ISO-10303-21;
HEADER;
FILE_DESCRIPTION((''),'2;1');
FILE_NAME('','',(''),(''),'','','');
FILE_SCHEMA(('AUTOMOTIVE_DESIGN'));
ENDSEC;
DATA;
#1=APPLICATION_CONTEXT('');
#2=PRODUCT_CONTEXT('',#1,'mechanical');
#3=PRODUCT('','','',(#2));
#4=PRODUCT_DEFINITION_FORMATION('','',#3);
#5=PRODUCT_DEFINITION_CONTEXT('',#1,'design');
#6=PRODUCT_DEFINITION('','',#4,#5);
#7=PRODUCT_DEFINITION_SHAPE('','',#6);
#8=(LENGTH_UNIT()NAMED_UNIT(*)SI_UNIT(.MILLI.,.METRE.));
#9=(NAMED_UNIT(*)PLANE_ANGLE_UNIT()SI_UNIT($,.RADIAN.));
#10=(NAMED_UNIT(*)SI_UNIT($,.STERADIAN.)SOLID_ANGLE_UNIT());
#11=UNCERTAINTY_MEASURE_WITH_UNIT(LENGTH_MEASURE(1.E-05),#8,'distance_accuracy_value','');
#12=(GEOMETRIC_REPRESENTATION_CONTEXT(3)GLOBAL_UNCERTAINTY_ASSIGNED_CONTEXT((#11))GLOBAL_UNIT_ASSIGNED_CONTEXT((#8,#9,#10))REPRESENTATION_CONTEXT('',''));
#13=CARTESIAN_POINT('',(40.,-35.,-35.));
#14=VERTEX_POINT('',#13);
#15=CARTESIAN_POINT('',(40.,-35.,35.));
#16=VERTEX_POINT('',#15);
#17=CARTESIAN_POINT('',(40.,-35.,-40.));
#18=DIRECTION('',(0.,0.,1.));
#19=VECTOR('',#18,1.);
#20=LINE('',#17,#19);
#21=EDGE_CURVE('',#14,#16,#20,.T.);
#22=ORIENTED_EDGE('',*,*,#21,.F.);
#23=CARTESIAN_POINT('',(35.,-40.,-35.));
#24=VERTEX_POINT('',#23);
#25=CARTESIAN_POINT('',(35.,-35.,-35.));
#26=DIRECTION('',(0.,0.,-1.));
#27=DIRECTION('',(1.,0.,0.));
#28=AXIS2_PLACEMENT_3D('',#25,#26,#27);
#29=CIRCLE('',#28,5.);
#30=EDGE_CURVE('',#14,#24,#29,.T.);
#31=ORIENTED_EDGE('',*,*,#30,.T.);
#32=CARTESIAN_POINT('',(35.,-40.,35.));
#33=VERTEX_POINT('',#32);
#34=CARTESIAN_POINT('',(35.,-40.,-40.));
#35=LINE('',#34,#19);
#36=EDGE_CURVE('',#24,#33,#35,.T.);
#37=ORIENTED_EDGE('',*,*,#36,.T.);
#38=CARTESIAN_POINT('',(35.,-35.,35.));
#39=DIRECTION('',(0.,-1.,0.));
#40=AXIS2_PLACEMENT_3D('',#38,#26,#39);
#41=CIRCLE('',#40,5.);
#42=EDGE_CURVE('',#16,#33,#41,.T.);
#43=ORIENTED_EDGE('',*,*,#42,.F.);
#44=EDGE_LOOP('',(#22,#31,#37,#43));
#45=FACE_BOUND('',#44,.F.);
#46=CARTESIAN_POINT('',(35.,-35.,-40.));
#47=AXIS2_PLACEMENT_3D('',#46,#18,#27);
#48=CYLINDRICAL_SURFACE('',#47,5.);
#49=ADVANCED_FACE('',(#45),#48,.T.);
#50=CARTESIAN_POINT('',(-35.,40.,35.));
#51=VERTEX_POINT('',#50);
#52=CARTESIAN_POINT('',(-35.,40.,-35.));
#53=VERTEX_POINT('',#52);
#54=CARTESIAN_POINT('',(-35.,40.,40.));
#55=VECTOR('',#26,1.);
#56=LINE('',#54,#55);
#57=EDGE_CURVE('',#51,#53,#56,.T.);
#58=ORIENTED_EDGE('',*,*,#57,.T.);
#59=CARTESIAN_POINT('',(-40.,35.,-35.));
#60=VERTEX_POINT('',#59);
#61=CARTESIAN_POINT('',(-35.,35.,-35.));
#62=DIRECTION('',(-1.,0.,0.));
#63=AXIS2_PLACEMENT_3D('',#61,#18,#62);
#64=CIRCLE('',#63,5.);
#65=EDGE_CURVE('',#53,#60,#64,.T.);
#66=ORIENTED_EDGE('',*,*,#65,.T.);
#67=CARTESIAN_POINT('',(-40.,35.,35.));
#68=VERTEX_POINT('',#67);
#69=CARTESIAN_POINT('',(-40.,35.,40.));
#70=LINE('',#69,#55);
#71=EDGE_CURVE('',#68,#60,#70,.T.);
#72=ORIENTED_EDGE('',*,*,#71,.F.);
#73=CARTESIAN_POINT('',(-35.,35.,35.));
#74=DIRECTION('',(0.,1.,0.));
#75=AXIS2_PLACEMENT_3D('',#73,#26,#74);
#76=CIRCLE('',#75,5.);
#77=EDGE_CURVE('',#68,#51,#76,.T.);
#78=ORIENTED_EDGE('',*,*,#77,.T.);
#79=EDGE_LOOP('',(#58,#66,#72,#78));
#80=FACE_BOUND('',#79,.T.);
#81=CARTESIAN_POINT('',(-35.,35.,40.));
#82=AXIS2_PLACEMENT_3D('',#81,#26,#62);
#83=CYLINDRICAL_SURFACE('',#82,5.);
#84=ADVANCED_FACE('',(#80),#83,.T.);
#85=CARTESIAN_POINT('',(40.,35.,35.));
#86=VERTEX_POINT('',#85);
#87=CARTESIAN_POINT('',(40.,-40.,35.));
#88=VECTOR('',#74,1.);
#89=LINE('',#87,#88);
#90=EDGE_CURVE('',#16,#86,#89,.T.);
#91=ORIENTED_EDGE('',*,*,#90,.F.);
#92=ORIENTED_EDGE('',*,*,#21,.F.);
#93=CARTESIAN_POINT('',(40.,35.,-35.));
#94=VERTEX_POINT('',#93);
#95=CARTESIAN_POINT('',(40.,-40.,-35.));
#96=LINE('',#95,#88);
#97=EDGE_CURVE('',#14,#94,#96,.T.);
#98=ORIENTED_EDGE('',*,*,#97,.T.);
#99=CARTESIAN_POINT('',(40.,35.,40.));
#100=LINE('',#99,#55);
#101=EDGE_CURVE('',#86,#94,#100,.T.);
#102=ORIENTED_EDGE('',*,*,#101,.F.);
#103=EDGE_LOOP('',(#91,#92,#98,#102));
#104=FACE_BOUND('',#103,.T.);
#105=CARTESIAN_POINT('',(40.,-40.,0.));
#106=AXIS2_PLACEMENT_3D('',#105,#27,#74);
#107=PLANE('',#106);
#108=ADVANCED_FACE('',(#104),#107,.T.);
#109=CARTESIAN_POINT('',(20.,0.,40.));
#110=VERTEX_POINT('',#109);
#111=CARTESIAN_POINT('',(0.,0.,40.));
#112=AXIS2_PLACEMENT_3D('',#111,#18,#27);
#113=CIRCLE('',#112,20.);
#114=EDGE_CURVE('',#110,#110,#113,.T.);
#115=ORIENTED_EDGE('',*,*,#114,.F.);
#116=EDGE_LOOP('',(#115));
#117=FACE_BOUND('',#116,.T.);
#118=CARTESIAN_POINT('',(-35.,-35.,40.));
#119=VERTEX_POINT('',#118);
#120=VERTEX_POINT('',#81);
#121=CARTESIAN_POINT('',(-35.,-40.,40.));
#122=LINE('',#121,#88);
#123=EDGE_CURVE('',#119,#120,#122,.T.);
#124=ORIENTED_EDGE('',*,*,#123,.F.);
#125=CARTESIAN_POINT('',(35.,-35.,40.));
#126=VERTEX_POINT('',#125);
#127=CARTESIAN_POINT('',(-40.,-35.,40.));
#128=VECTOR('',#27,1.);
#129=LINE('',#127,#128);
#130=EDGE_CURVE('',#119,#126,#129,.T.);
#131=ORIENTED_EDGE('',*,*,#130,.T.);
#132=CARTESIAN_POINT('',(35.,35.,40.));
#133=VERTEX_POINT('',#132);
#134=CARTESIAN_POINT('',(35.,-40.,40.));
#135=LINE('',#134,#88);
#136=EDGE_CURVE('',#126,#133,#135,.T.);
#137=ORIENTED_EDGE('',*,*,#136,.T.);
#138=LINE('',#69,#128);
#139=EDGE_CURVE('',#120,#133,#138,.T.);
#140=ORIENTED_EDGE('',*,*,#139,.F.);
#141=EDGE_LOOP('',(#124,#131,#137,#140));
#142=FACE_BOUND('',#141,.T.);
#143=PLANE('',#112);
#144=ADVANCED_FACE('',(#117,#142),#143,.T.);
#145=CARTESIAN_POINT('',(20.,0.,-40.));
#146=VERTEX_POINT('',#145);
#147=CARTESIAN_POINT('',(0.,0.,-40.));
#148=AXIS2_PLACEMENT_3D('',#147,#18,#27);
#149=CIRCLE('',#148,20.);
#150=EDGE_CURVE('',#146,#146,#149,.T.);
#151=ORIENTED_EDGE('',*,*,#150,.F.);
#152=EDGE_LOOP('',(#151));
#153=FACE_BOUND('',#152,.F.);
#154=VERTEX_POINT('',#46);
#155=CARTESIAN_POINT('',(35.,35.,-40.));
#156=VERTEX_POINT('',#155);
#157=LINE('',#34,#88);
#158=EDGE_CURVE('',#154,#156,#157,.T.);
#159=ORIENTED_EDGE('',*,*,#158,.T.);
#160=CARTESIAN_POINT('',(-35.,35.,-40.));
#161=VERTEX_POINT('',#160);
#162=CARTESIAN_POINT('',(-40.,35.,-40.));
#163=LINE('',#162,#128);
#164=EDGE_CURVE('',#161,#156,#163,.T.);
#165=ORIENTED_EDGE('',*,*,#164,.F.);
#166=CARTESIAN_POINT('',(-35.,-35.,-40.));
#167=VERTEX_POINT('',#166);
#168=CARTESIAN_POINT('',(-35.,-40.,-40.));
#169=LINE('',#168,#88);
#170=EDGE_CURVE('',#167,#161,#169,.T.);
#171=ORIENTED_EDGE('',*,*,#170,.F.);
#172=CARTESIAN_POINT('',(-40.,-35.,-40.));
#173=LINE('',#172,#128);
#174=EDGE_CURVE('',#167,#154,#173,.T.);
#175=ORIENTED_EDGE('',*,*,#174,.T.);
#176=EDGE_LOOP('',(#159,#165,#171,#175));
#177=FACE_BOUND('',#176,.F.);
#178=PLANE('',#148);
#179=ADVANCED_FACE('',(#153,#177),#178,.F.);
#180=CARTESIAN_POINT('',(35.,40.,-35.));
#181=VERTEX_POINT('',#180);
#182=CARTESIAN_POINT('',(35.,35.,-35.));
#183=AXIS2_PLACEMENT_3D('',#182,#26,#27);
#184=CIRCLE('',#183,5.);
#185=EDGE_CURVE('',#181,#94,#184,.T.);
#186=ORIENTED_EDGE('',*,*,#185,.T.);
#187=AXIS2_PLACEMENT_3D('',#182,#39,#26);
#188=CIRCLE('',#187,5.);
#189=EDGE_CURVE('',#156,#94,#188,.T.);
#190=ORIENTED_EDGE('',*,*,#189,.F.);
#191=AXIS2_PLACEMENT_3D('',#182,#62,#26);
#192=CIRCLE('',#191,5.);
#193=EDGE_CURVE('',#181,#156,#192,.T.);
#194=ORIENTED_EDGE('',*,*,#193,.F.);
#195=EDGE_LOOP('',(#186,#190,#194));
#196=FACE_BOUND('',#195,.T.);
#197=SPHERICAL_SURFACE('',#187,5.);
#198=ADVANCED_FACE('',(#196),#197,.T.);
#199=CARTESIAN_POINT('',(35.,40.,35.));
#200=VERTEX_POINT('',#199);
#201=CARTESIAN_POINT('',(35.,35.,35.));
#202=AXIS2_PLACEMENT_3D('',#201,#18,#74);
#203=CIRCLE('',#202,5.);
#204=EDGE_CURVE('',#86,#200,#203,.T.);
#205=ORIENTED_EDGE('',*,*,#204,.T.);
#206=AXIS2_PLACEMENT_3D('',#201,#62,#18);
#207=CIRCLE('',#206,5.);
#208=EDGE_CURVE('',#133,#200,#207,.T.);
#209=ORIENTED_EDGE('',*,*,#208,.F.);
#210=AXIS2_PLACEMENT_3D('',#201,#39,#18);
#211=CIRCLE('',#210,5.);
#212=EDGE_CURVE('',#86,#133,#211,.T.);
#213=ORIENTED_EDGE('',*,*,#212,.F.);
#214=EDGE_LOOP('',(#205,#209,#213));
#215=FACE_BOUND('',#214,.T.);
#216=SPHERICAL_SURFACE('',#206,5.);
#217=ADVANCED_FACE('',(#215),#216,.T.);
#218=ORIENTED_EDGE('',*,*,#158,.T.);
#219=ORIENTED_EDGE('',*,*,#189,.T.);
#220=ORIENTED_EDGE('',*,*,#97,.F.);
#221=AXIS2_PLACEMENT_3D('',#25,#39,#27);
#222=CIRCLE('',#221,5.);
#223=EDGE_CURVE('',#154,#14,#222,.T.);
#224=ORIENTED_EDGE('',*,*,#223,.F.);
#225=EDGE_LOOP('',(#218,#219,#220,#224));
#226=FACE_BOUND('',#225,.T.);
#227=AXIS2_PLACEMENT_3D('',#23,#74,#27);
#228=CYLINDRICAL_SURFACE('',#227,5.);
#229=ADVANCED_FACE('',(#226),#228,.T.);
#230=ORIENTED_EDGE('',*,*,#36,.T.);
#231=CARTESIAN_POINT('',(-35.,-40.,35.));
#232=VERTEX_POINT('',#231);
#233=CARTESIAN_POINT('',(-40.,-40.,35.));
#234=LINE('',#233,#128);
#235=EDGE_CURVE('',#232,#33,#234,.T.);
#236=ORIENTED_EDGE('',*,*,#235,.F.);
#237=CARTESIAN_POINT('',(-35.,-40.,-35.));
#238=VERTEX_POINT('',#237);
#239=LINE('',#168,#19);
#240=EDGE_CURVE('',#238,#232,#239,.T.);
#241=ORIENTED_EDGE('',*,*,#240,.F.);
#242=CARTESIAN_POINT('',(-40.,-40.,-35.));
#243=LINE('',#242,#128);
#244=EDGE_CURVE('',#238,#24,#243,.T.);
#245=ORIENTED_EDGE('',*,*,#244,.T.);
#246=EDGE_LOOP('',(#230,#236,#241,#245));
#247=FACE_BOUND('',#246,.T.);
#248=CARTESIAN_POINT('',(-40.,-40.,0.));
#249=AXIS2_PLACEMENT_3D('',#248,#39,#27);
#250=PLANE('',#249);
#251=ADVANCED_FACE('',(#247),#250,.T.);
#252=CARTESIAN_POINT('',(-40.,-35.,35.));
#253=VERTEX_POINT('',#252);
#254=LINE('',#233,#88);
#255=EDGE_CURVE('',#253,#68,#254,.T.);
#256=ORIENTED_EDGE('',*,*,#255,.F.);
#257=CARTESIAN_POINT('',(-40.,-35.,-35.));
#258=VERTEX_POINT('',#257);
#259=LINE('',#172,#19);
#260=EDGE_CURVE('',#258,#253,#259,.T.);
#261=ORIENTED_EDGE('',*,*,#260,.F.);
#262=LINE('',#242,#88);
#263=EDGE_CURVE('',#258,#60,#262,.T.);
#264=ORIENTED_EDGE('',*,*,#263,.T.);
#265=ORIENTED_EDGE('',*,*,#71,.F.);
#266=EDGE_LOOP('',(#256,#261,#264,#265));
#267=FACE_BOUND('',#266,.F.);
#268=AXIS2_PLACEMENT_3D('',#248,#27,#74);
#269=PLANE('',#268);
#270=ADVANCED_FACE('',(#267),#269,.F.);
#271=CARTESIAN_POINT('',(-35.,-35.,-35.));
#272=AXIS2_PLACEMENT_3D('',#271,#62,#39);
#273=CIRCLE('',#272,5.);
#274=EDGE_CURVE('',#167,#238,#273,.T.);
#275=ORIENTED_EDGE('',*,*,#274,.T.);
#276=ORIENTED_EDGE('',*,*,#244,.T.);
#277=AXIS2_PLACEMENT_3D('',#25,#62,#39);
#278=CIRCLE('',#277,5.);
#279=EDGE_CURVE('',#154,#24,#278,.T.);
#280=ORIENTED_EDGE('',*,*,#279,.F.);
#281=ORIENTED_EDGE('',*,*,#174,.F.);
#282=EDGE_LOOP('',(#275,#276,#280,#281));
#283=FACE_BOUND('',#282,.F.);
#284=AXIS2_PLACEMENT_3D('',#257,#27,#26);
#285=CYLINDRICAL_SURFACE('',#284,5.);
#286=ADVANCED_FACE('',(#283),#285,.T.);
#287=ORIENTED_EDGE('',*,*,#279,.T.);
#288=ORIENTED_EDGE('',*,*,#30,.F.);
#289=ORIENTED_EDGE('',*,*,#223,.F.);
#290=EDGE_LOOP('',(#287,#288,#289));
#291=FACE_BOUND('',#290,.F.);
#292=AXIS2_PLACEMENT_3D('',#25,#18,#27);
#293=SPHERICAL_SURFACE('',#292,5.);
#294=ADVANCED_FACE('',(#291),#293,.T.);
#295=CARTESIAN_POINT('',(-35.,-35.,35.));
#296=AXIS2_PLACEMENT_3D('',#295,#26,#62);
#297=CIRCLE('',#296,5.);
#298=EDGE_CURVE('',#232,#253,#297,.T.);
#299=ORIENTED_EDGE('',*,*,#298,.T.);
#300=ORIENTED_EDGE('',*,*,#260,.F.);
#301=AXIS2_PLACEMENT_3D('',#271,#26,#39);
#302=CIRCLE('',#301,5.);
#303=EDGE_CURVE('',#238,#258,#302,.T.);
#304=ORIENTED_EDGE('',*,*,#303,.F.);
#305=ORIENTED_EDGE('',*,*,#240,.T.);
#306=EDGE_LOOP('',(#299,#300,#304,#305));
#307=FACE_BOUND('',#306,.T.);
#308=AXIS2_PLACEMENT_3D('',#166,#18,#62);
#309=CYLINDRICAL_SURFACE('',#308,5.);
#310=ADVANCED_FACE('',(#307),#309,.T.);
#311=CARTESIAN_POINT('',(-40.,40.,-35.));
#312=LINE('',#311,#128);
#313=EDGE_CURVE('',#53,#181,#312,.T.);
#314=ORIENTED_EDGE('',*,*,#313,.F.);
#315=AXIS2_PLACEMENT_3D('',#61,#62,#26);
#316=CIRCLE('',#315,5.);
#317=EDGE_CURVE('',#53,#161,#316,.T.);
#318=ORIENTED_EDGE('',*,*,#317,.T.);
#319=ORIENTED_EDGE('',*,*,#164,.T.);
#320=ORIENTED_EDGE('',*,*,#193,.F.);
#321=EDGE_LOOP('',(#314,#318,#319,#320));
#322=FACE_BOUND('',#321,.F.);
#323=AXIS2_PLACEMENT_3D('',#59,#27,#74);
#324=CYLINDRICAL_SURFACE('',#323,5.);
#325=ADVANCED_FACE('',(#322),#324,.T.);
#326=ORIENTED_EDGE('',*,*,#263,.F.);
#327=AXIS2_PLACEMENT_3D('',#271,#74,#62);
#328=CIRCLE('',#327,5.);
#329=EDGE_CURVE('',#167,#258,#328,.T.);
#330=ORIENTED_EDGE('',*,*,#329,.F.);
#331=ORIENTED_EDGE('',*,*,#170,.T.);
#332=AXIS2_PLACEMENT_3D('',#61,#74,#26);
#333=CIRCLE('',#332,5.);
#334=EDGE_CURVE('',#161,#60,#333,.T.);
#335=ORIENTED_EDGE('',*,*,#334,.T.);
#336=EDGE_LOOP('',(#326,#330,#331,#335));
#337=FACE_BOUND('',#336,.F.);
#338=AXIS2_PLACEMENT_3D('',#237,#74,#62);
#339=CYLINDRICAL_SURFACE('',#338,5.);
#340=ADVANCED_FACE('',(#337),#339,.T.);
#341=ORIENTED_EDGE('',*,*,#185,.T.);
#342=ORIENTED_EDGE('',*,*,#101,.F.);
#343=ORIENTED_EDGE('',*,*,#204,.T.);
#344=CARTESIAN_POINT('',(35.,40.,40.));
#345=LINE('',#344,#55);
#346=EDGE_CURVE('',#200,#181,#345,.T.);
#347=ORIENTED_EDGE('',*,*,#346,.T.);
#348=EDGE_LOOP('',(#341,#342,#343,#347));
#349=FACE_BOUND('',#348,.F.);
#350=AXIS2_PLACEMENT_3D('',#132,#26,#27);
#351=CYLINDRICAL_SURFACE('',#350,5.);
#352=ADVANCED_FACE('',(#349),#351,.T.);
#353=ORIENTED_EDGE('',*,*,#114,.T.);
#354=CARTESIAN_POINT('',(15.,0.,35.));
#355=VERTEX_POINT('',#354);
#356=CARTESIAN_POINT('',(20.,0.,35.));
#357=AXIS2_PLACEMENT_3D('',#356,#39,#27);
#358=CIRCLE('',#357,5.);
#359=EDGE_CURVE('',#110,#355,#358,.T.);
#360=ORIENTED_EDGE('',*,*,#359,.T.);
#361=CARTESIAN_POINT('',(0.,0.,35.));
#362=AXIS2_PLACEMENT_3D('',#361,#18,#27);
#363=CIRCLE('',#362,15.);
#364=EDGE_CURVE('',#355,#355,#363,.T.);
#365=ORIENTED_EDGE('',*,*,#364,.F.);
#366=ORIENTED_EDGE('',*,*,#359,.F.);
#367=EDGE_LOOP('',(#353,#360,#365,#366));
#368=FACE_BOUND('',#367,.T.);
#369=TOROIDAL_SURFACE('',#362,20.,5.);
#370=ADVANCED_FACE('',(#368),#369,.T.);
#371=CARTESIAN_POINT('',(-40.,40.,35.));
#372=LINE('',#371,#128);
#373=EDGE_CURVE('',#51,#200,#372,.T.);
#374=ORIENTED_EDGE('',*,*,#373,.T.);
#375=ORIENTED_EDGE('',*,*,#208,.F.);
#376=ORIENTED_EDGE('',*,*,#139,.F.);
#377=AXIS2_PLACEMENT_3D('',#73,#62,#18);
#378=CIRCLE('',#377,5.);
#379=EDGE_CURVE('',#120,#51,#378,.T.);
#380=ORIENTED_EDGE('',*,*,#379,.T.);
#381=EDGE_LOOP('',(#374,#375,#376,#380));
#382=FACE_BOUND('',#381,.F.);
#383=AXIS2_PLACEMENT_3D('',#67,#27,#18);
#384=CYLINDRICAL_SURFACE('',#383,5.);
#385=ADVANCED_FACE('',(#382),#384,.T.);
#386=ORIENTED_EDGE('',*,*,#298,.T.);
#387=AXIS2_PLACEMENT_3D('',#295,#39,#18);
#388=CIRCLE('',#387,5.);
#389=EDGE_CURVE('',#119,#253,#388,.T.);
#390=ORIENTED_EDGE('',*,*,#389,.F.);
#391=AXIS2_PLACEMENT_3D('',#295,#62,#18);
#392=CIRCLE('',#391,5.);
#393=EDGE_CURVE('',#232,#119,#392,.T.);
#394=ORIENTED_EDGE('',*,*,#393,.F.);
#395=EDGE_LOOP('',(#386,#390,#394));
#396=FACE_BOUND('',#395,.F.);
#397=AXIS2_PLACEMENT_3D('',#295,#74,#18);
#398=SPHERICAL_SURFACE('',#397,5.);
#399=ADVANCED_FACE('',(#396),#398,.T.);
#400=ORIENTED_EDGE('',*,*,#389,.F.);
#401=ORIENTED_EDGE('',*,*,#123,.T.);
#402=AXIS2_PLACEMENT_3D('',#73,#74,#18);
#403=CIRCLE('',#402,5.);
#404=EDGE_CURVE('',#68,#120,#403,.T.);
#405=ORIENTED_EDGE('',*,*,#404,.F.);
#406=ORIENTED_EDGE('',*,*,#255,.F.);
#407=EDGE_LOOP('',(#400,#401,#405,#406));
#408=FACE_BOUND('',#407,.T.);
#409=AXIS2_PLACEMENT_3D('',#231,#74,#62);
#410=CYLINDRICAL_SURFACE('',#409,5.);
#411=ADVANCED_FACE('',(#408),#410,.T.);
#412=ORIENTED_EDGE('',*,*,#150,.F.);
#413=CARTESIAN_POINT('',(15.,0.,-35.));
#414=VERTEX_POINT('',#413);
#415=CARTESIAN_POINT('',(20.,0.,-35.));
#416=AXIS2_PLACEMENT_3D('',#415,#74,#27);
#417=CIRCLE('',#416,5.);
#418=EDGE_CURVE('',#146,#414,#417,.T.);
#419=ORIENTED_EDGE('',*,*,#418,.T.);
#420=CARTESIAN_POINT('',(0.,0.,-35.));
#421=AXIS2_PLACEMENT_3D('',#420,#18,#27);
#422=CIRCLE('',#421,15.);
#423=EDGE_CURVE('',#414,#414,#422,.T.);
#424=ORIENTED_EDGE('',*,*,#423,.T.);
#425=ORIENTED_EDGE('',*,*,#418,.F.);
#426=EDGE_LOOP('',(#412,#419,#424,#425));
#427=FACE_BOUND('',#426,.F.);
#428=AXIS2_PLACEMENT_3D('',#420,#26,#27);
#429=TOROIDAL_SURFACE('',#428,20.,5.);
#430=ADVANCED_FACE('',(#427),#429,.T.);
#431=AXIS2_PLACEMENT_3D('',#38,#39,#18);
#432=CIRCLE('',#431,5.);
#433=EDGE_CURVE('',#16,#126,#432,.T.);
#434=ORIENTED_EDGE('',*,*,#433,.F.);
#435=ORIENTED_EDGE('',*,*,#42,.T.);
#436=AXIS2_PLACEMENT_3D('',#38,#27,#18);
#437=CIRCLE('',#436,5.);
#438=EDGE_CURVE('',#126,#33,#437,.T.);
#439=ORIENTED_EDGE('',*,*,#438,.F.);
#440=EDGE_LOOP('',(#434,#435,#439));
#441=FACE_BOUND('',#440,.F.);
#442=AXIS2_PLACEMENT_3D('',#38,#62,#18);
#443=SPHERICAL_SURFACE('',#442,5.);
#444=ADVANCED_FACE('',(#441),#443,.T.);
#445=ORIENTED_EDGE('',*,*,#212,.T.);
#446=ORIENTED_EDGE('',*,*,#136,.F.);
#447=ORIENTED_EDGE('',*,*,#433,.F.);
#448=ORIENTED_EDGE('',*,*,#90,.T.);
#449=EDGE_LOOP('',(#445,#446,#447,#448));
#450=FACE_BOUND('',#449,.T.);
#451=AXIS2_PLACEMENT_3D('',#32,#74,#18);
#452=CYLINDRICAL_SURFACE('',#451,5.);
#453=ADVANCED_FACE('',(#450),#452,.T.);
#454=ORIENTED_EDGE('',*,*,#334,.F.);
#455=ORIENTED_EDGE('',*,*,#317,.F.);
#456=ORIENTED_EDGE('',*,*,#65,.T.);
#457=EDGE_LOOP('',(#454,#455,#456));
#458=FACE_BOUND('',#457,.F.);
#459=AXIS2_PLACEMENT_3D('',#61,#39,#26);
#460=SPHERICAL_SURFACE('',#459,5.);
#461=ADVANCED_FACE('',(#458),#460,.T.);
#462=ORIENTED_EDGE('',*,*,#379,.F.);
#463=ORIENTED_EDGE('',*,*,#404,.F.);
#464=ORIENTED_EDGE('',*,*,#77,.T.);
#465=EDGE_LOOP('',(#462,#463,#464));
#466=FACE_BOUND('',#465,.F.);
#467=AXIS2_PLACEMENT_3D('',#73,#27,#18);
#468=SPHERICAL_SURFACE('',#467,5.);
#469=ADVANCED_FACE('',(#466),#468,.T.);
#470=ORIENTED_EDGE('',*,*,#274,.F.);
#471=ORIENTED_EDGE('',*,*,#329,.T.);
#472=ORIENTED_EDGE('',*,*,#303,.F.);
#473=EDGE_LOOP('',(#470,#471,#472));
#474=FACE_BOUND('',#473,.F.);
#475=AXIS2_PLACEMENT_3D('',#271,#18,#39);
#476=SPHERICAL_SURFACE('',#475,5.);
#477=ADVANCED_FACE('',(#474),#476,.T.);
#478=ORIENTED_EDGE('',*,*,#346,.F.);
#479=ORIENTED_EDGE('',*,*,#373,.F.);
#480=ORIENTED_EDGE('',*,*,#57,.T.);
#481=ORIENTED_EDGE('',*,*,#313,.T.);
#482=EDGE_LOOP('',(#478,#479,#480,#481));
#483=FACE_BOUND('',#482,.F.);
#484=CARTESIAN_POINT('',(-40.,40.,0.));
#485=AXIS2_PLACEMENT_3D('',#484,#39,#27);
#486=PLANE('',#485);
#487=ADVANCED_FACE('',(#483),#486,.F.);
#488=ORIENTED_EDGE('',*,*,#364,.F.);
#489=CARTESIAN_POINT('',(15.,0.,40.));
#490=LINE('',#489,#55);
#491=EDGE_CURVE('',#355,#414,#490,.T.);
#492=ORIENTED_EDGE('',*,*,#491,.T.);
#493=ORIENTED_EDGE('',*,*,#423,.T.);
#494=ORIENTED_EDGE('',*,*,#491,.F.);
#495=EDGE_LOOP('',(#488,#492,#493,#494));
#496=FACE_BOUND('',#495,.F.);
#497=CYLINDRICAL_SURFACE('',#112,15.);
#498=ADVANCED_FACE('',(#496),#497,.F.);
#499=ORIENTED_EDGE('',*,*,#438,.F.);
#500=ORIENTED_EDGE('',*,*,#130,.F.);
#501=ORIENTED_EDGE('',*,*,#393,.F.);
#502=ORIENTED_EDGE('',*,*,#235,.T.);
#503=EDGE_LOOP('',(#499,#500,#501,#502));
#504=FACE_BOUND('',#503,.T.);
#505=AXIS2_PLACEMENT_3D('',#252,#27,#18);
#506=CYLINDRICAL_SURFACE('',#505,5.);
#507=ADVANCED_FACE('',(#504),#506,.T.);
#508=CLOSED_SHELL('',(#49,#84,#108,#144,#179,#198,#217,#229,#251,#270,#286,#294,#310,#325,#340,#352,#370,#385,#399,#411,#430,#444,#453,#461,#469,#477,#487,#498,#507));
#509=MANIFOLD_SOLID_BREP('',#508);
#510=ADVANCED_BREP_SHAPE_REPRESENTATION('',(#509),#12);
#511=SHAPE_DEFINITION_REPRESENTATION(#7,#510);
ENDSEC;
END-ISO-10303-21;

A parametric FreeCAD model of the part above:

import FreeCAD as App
import Part
import Sketcher

V = App.Vector
Q = App.Units.Quantity


def edges_at(feature, points):
    """Names of the edges that pass closest to the given points."""
    edges = feature.Shape.Edges
    near = lambda p: min(range(len(edges)), key=lambda i: edges[i].distToShape(Part.Vertex(*p))[0])
    return sorted({f"Edge{near(p) + 1}" for p in points})


def add_polygon(sketch, points):
    """Adds a closed chain of lines whose ends are joined by coincident constraints."""
    first, n = sketch.GeometryCount, len(points)
    for a, b in zip(points, points[1:] + points[:1]):
        sketch.addGeometry(Part.LineSegment(App.Vector(*a, 0), App.Vector(*b, 0)), False)
    for i in range(n):
        sketch.addConstraint(Sketcher.Constraint("Coincident", first + i, 2, first + (i + 1) % n, 1))

doc = App.newDocument("Part")
params = doc.addObject("Spreadsheet::Sheet", "Params")
for row, (alias, value) in enumerate([
    ("sketch1_width", "80 mm"),
    ("pad1_length", "80 mm"),
    ("fillet_radius", "5 mm"),
    ("sketch2_diameter", "30 mm"),
    ("fillet2_radius", "5 mm"),
], start=1):
    params.set(f"A{row}", alias)
    params.set(f"B{row}", "=" + value)
    params.setAlias(f"B{row}", alias)

body = doc.addObject("PartDesign::Body", "Body")

sketch1 = body.newObject("Sketcher::SketchObject", "Sketch")
sketch1.AttachmentSupport = (doc.getObject("XY_Plane"), [""])
sketch1.MapMode = "FlatFace"
add_polygon(sketch1, [(-40, 40), (-40, -40), (40, -40), (40, 40)])
sketch1.addConstraint([
    Sketcher.Constraint("Vertical", 0),
    Sketcher.Constraint("Horizontal", 1),
    Sketcher.Constraint("Vertical", 2),
    Sketcher.Constraint("Horizontal", 3),
    Sketcher.Constraint("Symmetric", 0, 2, 2, 2, -1, 1),
    Sketcher.Constraint("Equal", 3, 0),
    Sketcher.Constraint("DistanceX", 1, 1, 1, 2, Q("80 mm")),
])
sketch1.setExpression("Constraints[10]", "Params.sketch1_width")
pad1 = body.newObject("PartDesign::Pad", "Pad")
pad1.Profile = sketch1
pad1.setExpression("Length", "Params.pad1_length")
pad1.Midplane = True
doc.recompute()

fillet = body.newObject("PartDesign::Fillet", "Fillet")
fillet.Base = (pad1, ["Edge1"])
fillet.UseAllEdges = True
fillet.setExpression("Radius", "Params.fillet_radius")

sketch2 = body.newObject("Sketcher::SketchObject", "Sketch001")
sketch2.AttachmentSupport = (doc.getObject("XY_Plane"), [""])
sketch2.MapMode = "FlatFace"
sketch2.AttachmentOffset = App.Placement(V(0, 0, 40), App.Rotation())
sketch2.addGeometry(Part.Circle(V(0, 0, 0), V(0, 0, 1), 15), False)
sketch2.addConstraint([
    Sketcher.Constraint("Coincident", 0, 3, -1, 1),
    Sketcher.Constraint("Diameter", 0, Q("30 mm")),
])
sketch2.setExpression("Constraints[1]", "Params.sketch2_diameter")
pocket1 = body.newObject("PartDesign::Pocket", "Pocket")
pocket1.Profile = sketch2
pocket1.Type = "ThroughAll"
doc.recompute()

fillet2 = body.newObject("PartDesign::Fillet", "Fillet001")
fillet2.Base = (pocket1, edges_at(pocket1, [(-15, 0, 40), (-15, 0, -40)]))
fillet2.setExpression("Radius", "Params.fillet2_radius")

doc.recompute()
